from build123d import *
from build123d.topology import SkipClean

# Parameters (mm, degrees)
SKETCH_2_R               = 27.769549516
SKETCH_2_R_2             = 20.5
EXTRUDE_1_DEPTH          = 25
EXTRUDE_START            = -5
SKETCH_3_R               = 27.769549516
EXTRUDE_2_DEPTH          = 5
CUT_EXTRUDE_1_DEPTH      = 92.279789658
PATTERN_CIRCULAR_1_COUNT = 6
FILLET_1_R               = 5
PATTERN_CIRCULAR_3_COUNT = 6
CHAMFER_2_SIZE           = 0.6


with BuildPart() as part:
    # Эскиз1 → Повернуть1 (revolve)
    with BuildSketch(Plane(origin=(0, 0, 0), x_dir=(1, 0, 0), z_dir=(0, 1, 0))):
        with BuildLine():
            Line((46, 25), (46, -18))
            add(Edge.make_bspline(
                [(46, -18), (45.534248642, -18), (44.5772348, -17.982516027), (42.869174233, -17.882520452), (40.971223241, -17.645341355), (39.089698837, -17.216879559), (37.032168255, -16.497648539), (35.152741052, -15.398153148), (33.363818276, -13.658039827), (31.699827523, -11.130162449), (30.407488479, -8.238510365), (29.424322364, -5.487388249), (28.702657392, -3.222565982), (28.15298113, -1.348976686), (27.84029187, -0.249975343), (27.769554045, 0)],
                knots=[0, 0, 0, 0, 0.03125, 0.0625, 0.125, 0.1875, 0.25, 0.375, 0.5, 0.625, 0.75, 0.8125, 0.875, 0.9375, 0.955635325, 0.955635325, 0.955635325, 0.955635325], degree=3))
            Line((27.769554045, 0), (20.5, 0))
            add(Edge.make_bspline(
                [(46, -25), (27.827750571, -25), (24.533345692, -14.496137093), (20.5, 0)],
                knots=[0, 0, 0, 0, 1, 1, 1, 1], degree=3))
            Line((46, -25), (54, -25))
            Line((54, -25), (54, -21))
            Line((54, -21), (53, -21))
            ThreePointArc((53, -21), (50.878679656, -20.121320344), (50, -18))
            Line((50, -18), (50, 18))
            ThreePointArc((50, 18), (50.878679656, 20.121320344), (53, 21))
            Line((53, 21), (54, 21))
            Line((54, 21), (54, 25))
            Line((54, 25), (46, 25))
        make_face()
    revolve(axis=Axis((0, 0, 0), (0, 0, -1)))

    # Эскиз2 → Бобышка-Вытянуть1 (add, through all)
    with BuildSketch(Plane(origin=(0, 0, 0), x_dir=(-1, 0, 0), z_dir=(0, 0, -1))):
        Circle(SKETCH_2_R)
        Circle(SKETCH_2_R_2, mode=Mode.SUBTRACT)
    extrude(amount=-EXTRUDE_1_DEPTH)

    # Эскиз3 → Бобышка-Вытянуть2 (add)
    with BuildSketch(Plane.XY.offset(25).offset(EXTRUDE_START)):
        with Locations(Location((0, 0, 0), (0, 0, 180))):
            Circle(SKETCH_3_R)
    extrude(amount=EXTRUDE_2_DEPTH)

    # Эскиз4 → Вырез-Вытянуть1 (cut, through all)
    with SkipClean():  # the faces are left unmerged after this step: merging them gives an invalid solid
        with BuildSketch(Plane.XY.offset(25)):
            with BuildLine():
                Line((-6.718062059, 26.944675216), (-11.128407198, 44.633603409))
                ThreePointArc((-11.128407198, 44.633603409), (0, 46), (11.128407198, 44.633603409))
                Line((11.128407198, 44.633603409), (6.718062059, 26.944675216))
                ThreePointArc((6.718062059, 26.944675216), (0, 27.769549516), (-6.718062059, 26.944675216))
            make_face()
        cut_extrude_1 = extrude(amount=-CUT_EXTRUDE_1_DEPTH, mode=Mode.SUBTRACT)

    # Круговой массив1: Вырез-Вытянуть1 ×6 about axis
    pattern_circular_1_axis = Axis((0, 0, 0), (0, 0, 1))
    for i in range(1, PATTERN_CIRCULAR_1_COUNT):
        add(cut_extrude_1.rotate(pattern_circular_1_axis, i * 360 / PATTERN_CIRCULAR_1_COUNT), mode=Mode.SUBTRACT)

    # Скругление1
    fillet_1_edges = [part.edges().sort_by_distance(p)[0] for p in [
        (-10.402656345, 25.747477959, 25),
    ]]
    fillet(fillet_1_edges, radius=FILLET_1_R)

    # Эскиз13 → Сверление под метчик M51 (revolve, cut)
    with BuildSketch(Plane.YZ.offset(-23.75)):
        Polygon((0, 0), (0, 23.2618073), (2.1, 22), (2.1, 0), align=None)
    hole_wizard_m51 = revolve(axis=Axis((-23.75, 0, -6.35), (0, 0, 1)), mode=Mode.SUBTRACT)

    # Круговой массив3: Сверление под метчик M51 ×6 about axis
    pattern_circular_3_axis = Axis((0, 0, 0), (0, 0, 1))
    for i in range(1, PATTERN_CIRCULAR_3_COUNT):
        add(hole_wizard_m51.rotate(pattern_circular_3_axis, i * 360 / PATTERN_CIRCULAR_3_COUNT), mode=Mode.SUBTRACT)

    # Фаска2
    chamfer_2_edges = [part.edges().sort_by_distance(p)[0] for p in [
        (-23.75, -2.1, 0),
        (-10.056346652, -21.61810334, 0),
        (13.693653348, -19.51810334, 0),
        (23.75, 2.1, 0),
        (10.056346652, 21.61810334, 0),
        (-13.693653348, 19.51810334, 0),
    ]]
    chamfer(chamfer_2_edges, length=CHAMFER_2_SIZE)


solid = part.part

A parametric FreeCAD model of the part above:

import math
import FreeCAD as App
import Part
import Sketcher

V = App.Vector
Q = App.Units.Quantity


def edges_at(feature, points):
    """Names of the edges that pass closest to the given points."""
    edges = feature.Shape.Edges
    near = lambda p: min(range(len(edges)), key=lambda i: edges[i].distToShape(Part.Vertex(*p))[0])
    return sorted({f"Edge{near(p) + 1}" for p in points})


def add_polygon(sketch, points):
    """Adds a closed chain of lines whose ends are joined by coincident constraints."""
    first, n = sketch.GeometryCount, len(points)
    for a, b in zip(points, points[1:] + points[:1]):
        sketch.addGeometry(Part.LineSegment(App.Vector(*a, 0), App.Vector(*b, 0)), False)
    for i in range(n):
        sketch.addConstraint(Sketcher.Constraint("Coincident", first + i, 2, first + (i + 1) % n, 1))

doc = App.newDocument("Part")
body = doc.addObject("PartDesign::Body", "Body")

# Sketch on XZ plane
sketch1 = body.newObject("Sketcher::SketchObject", "Sketch")
sketch1.AttachmentSupport = (doc.getObject("XZ_Plane"), [""])
sketch1.MapMode = "FlatFace"
sketch1.addGeometry(Part.LineSegment(V(46, -25, 0), V(46, 18, 0)), False)
sketch1.addGeometry(Part.BSplineCurve([V(46, 18, 0), V(45.534249, 18, 0), V(44.577235, 17.982516, 0), V(42.869174, 17.88252, 0), V(40.971223, 17.645341, 0), V(39.089699, 17.21688, 0), V(37.032168, 16.497649, 0), V(35.152741, 15.398153, 0), V(33.363818, 13.65804, 0), V(31.699828, 11.130162, 0), V(30.407488, 8.23851, 0), V(29.424322, 5.487388, 0), V(28.702657, 3.222566, 0), V(28.152981, 1.348977, 0), V(27.840292, 0.249975, 0), V(27.769554, 0, 0)], [4, 1, 1, 1, 1, 1, 1, 1, 1, 1, 1, 1, 1, 4], [0, 0.03125, 0.0625, 0.125, 0.1875, 0.25, 0.375, 0.5, 0.625, 0.75, 0.8125, 0.875, 0.9375, 0.955635325], False, 3, [1, 1, 1, 1, 1, 1, 1, 1, 1, 1, 1, 1, 1, 1, 1, 1], False), False)
sketch1.addGeometry(Part.LineSegment(V(27.769554, 0, 0), V(20.5, 0, 0)), False)
sketch1.addGeometry(Part.BSplineCurve([V(46, 25, 0), V(27.827751, 25, 0), V(24.533346, 14.496137, 0), V(20.5, 0, 0)], [4, 4], [0, 1], False, 3, [1, 1, 1, 1], False), False)
sketch1.addGeometry(Part.LineSegment(V(46, 25, 0), V(54, 25, 0)), False)
sketch1.addGeometry(Part.LineSegment(V(54, 25, 0), V(54, 21, 0)), False)
sketch1.addGeometry(Part.LineSegment(V(54, 21, 0), V(53, 21, 0)), False)
sketch1.addGeometry(Part.ArcOfCircle(Part.Circle(V(53, 18, 0), V(0, 0, 1), 3), math.radians(90), math.radians(180)), False)
sketch1.addGeometry(Part.LineSegment(V(50, 18, 0), V(50, -18, 0)), False)
sketch1.addGeometry(Part.ArcOfCircle(Part.Circle(V(53, -18, 0), V(0, 0, 1), 3), math.radians(180), math.radians(270)), False)
sketch1.addGeometry(Part.LineSegment(V(53, -21, 0), V(54, -21, 0)), False)
sketch1.addGeometry(Part.LineSegment(V(54, -21, 0), V(54, -25, 0)), False)
sketch1.addGeometry(Part.LineSegment(V(54, -25, 0), V(46, -25, 0)), False)
sketch1.addConstraint(Sketcher.Constraint("Block", 1))
sketch1.addConstraint(Sketcher.Constraint("Block", 3))
sketch1.addConstraint(Sketcher.Constraint("Coincident", 0, 2, 1, 1))
sketch1.addConstraint(Sketcher.Constraint("Coincident", 1, 2, 2, 1))
sketch1.addConstraint(Sketcher.Constraint("Coincident", 2, 2, 3, 2))
sketch1.addConstraint(Sketcher.Constraint("Coincident", 3, 1, 4, 1))
sketch1.addConstraint(Sketcher.Constraint("Coincident", 4, 2, 5, 1))
sketch1.addConstraint(Sketcher.Constraint("Coincident", 5, 2, 6, 1))
sketch1.addConstraint(Sketcher.Constraint("Tangent", 6, 2, 7, 1))
sketch1.addConstraint(Sketcher.Constraint("Tangent", 7, 2, 8, 1))
sketch1.addConstraint(Sketcher.Constraint("Tangent", 8, 2, 9, 1))
sketch1.addConstraint(Sketcher.Constraint("Tangent", 9, 2, 10, 1))
sketch1.addConstraint(Sketcher.Constraint("Coincident", 10, 2, 11, 1))
sketch1.addConstraint(Sketcher.Constraint("Coincident", 11, 2, 12, 1))
sketch1.addConstraint(Sketcher.Constraint("Coincident", 12, 2, 0, 1))
sketch1.addConstraint(Sketcher.Constraint("Vertical", 0))
sketch1.addConstraint(Sketcher.Constraint("Horizontal", 4))
sketch1.addConstraint(Sketcher.Constraint("Vertical", 5))
sketch1.addConstraint(Sketcher.Constraint("Horizontal", 6))
sketch1.addConstraint(Sketcher.Constraint("Vertical", 8))
sketch1.addConstraint(Sketcher.Constraint("Horizontal", 10))
sketch1.addConstraint(Sketcher.Constraint("Vertical", 11))
sketch1.addConstraint(Sketcher.Constraint("Horizontal", 12))
sketch1.addConstraint(Sketcher.Constraint("Equal", 7, 9))
sketch1.addConstraint(Sketcher.Constraint("Symmetric", 5, 2, 10, 2, -1))
sketch1.addConstraint(Sketcher.Constraint("Horizontal", 7, 3, 0, 2))
sketch1.addConstraint(Sketcher.Constraint("Equal", 5, 11))
sketch1.addConstraint(Sketcher.Constraint("Radius", 7, Q("3 mm")))
sketch1.addConstraint(Sketcher.Constraint("DistanceX", 4, 1, 4, 2, Q("8 mm")))
sketch1.addConstraint(Sketcher.Constraint("DistanceX", 6, 2, 6, 1, Q("1 mm")))
revolution = body.newObject("PartDesign::Revolution", "Revolution")
revolution.Profile = sketch1
revolution.ReferenceAxis = (sketch1, ["V_Axis"])
revolution.Angle = 360

# Sketch on XY plane
sketch2 = body.newObject("Sketcher::SketchObject", "Sketch001")
sketch2.AttachmentSupport = (doc.getObject("XY_Plane"), [""])
sketch2.MapMode = "FlatFace"
sketch2.addGeometry(Part.Circle(V(0, 0, 0), V(0, 0, 1), 28), False)
sketch2.addGeometry(Part.Circle(V(0, 0, 0), V(0, 0, 1), 20), False)
sketch2.addConstraint(Sketcher.Constraint("Coincident", 0, 3, -1, 1))
sketch2.addConstraint(Sketcher.Constraint("Coincident", 1, 3, -1, 1))
sketch2.addConstraint(Sketcher.Constraint("Diameter", 1, Q("41 mm")))
sketch2.addConstraint(Sketcher.Constraint("Diameter", 0, Q("55.539099 mm")))
pad1 = body.newObject("PartDesign::Pad", "Pad")
pad1.Profile = sketch2
pad1.Length = 25

# Sketch on XY plane
sketch3 = body.newObject("Sketcher::SketchObject", "Sketch002")
sketch3.AttachmentSupport = (doc.getObject("XY_Plane"), [""])
sketch3.MapMode = "FlatFace"
sketch3.AttachmentOffset = App.Placement(V(0, 0, 20), App.Rotation())
sketch3.addGeometry(Part.Circle(V(0, 0, 0), V(0, 0, 1), 28), False)
sketch3.addConstraint(Sketcher.Constraint("Coincident", 0, 3, -1, 1))
sketch3.addConstraint(Sketcher.Constraint("Diameter", 0, Q("55.539099 mm")))
pad2 = body.newObject("PartDesign::Pad", "Pad001")
pad2.Profile = sketch3
pad2.Length = 5

# Sketch on XY plane
sketch4 = body.newObject("Sketcher::SketchObject", "Sketch003")
sketch4.AttachmentSupport = (doc.getObject("XY_Plane"), [""])
sketch4.MapMode = "FlatFace"
sketch4.AttachmentOffset = App.Placement(V(0, 0, 25), App.Rotation())
sketch4.addGeometry(Part.LineSegment(V(-11, 45, 0), V(-7, 27, 0)), False)
sketch4.addGeometry(Part.ArcOfCircle(Part.Circle(V(0, 0, 0), V(0, 0, 1), 28), math.radians(76), math.radians(104)), False)
sketch4.addGeometry(Part.LineSegment(V(7, 27, 0), V(11, 45, 0)), False)
sketch4.addGeometry(Part.ArcOfCircle(Part.Circle(V(0, 0, 0), V(0, 0, 1), 46), math.radians(76), math.radians(104)), False)
sketch4.addConstraint(Sketcher.Constraint("Coincident", 0, 2, 1, 2))
sketch4.addConstraint(Sketcher.Constraint("Coincident", 1, 1, 2, 1))
sketch4.addConstraint(Sketcher.Constraint("Coincident", 2, 2, 3, 1))
sketch4.addConstraint(Sketcher.Constraint("Coincident", 3, 2, 0, 1))
sketch4.addConstraint(Sketcher.Constraint("Coincident", 1, 3, -1, 1))
sketch4.addConstraint(Sketcher.Constraint("Coincident", 3, 3, -1, 1))
sketch4.addConstraint(Sketcher.Constraint("Horizontal", 0, 2, 1, 1))
sketch4.addConstraint(Sketcher.Constraint("Horizontal", 2, 2, 3, 2))
sketch4.addConstraint(Sketcher.Constraint("Radius", 3, Q("46 mm")))
sketch4.addConstraint(Sketcher.Constraint("Angle", 0, Q("-76 deg")))
sketch4.addConstraint(Sketcher.Constraint("Radius", 1, Q("27.76955 mm")))
sketch4.addConstraint(Sketcher.Constraint("DistanceX", 0, 2, 2, 2, Q("17.846469 mm")))
pocket1 = body.newObject("PartDesign::Pocket", "Pocket")
pocket1.Profile = sketch4
pocket1.Type = "ThroughAll"
doc.recompute()

polarpattern = body.newObject("PartDesign::PolarPattern", "PolarPattern")
polarpattern.Originals = [pocket1]
polarpattern.Axis = (doc.getObject("Z_Axis"), [""])
polarpattern.Angle = 360
polarpattern.Occurrences = 6
body.Tip = polarpattern
doc.recompute()

fillet = body.newObject("PartDesign::Fillet", "Fillet")
fillet.Base = (polarpattern, edges_at(polarpattern, [(-13.885, 24.049, 25)]))
fillet.Radius = 5

# Sketch on YZ plane
sketch5 = body.newObject("Sketcher::SketchObject", "Sketch004")
sketch5.AttachmentSupport = (doc.getObject("YZ_Plane"), [""])
sketch5.MapMode = "FlatFace"
sketch5.AttachmentOffset = App.Placement(V(0, 0, -23.75), App.Rotation())
add_polygon(sketch5, [(0, 23.3), (0, 0), (2.1, 0), (2.1, 22)])  # lines 0-3
sketch5.addConstraint(Sketcher.Constraint("Vertical", 0))
sketch5.addConstraint(Sketcher.Constraint("Horizontal", 1))
sketch5.addConstraint(Sketcher.Constraint("Vertical", 2))
sketch5.addConstraint(Sketcher.Constraint("Coincident", 0, 2, -1, 1))
sketch5.addConstraint(Sketcher.Constraint("DistanceY", 2, 1, 2, 2, Q("22 mm")))
sketch5.addConstraint(Sketcher.Constraint("Angle", 3, Q("149 deg")))
sketch5.addConstraint(Sketcher.Constraint("DistanceX", 1, 1, 1, 2, Q("2.1 mm")))
groove = body.newObject("PartDesign::Groove", "Groove")
groove.Profile = sketch5
groove.ReferenceAxis = (sketch5, ["V_Axis"])
groove.Angle = 360
doc.recompute()

polarpattern2 = body.newObject("PartDesign::PolarPattern", "PolarPattern001")
polarpattern2.Originals = [groove]
polarpattern2.Axis = (doc.getObject("Z_Axis"), [""])
polarpattern2.Angle = 360
polarpattern2.Occurrences = 6
body.Tip = polarpattern2
doc.recompute()

chamfer = body.newObject("PartDesign::Chamfer", "Chamfer")
chamfer.Base = (polarpattern2, edges_at(polarpattern2, [
    (-23.75, -2.1, 0),
    (-10.056, -21.618, 0),
    (13.694, -19.518, 0),
    (23.75, 2.1, 0),
    (10.056, 21.618, 0),
    (-13.694, 19.518, 0),
]))
chamfer.Size = 0.6

doc.recompute()
